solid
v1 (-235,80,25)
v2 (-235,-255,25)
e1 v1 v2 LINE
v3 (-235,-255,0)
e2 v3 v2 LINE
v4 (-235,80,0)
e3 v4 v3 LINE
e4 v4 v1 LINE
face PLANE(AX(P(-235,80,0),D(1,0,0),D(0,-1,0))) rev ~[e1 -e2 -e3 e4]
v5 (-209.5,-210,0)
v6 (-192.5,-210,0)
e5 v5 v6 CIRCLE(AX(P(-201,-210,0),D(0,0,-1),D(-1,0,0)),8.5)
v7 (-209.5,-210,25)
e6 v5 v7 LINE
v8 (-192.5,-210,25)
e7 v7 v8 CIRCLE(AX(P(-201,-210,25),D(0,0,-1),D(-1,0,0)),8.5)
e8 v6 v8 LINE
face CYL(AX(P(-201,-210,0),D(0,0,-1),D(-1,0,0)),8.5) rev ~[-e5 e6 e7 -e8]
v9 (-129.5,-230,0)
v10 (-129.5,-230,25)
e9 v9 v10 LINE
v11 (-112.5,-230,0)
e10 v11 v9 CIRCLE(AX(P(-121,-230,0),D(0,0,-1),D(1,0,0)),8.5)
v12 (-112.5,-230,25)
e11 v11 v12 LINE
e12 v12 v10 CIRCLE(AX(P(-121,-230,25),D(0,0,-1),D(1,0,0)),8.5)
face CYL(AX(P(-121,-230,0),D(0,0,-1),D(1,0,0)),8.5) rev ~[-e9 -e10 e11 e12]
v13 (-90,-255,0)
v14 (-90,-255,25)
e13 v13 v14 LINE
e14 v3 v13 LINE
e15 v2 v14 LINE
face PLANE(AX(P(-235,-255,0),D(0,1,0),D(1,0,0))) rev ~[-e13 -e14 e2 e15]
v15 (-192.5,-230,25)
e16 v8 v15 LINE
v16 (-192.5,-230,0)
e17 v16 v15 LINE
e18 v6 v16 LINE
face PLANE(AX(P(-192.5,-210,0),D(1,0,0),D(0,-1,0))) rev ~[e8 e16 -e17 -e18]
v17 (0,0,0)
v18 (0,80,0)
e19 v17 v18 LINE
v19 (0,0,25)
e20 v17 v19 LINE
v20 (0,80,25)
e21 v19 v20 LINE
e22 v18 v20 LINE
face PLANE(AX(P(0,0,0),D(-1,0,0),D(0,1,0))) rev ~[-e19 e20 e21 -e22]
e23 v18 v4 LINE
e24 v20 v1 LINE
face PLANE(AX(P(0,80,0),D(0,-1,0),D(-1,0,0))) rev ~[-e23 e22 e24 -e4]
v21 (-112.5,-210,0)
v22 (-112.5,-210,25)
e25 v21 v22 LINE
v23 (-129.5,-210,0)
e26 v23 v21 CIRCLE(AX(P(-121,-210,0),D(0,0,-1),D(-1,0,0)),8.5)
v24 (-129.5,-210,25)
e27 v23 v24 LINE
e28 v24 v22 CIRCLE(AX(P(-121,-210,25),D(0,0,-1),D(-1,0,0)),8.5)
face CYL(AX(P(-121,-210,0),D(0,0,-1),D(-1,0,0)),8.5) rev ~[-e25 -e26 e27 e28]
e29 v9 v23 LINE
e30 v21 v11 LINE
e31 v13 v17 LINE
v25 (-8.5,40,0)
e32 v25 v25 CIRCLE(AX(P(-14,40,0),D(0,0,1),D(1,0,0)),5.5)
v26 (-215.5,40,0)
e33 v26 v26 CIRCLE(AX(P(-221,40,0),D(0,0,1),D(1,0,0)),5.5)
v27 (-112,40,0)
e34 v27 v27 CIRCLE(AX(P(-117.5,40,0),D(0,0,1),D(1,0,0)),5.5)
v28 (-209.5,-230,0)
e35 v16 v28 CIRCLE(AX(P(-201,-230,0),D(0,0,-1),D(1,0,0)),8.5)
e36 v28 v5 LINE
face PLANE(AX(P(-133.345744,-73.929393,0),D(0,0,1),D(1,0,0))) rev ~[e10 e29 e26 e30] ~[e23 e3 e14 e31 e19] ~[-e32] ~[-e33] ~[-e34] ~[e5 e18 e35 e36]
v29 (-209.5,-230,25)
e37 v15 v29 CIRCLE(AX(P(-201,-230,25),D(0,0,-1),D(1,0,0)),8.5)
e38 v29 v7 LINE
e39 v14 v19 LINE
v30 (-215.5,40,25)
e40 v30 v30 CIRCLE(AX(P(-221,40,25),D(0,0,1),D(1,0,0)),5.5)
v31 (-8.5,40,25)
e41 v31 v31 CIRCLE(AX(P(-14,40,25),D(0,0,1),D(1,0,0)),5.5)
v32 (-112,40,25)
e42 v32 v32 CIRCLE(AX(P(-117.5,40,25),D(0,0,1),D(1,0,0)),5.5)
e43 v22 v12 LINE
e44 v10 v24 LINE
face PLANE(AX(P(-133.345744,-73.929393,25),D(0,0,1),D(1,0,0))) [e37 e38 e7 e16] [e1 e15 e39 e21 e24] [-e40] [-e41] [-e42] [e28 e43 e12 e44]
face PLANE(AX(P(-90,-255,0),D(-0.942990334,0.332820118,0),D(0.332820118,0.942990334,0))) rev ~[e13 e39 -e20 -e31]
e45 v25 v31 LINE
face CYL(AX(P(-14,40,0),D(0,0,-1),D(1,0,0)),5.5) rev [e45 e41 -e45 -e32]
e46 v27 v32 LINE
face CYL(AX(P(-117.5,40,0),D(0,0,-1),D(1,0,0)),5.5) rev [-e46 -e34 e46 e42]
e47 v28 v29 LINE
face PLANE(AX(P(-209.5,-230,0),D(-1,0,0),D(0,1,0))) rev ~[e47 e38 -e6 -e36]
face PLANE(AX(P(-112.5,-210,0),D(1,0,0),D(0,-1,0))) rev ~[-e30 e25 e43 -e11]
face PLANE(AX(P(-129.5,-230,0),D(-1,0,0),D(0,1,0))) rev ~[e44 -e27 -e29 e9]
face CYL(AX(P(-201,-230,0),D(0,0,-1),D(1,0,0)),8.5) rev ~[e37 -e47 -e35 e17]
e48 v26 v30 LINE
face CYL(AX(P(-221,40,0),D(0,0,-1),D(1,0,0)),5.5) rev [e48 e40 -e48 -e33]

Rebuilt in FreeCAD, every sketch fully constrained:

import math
import FreeCAD as App
import Part
import Sketcher
from FreeCAD import Vector
Q = App.Units.Quantity


def add_polygon(sketch, points):
    """Adds a closed chain of lines whose ends are joined by coincident constraints."""
    first, n = sketch.GeometryCount, len(points)
    for a, b in zip(points, points[1:] + points[:1]):
        sketch.addGeometry(Part.LineSegment(App.Vector(*a, 0), App.Vector(*b, 0)), False)
    for i in range(n):
        sketch.addConstraint(Sketcher.Constraint("Coincident", first + i, 2, first + (i + 1) % n, 1))

doc = App.newDocument("Part")
params = doc.addObject("Spreadsheet::Sheet", "Params")
for row, (alias, value) in enumerate([
    ("sketch1_diameter", "11 mm"),
    ("sketch1_radius", "8.5 mm"),
    ("sketch1_width", "235 mm"),
    ("sketch1_width2", "145 mm"),
    ("sketch1_height", "335 mm"),
    ("pad1_length", "25 mm"),
    ("sketch2_diameter", "11 mm"),
    ("sketch2_radius", "8.5 mm"),
    ("sketch2_width", "235 mm"),
    ("sketch2_width2", "145 mm"),
    ("sketch2_height", "335 mm"),
    ("pad2_length", "25 mm"),
], start=1):
    params.set(f"A{row}", alias)
    params.set(f"B{row}", "=" + value)
    params.setAlias(f"B{row}", alias)

body = doc.addObject("PartDesign::Body", "Body")

# Sketch on XY plane
sketch1 = body.newObject("Sketcher::SketchObject", "Sketch")
sketch1.AttachmentSupport = (doc.getObject("XY_Plane"), [""])
sketch1.MapMode = "FlatFace"
add_polygon(sketch1, [(0, 80), (-235, 80), (-235, -255), (-90, -255), (0, 0)])  # lines 0-4
sketch1.addGeometry(Part.LineSegment(Vector(-210, -230, 0), Vector(-210, -210, 0)), False)  # 5
sketch1.addGeometry(Part.ArcOfCircle(Part.Circle(Vector(-201, -210, 0), Vector(0, 0, 1), 8), math.radians(0), math.radians(180)), False)  # 6
sketch1.addGeometry(Part.LineSegment(Vector(-192, -210, 0), Vector(-192, -230, 0)), False)  # 7
sketch1.addGeometry(Part.ArcOfCircle(Part.Circle(Vector(-201, -230, 0), Vector(0, 0, 1), 8), math.radians(180), math.radians(360)), False)  # 8
sketch1.addGeometry(Part.LineSegment(Vector(-130, -230, 0), Vector(-130, -210, 0)), False)  # 9
sketch1.addGeometry(Part.ArcOfCircle(Part.Circle(Vector(-121, -210, 0), Vector(0, 0, 1), 8), math.radians(0), math.radians(180)), False)  # 10
sketch1.addGeometry(Part.LineSegment(Vector(-112, -210, 0), Vector(-112, -230, 0)), False)  # 11
sketch1.addGeometry(Part.ArcOfCircle(Part.Circle(Vector(-121, -230, 0), Vector(0, 0, 1), 8), math.radians(180), math.radians(360)), False)  # 12
sketch1.addGeometry(Part.Circle(Vector(-221, 40, 0), Vector(0, 0, 1), 6), False)  # 13
sketch1.addGeometry(Part.Circle(Vector(-118, 40, 0), Vector(0, 0, 1), 6), False)  # 14
sketch1.addGeometry(Part.Circle(Vector(-14, 40, 0), Vector(0, 0, 1), 6), False)  # 15
sketch1.addConstraint(Sketcher.Constraint("Tangent", 5, 2, 6, 2))
sketch1.addConstraint(Sketcher.Constraint("Tangent", 6, 1, 7, 1))
sketch1.addConstraint(Sketcher.Constraint("Tangent", 7, 2, 8, 2))
sketch1.addConstraint(Sketcher.Constraint("Tangent", 8, 1, 5, 1))
sketch1.addConstraint(Sketcher.Constraint("Tangent", 9, 2, 10, 2))
sketch1.addConstraint(Sketcher.Constraint("Tangent", 10, 1, 11, 1))
sketch1.addConstraint(Sketcher.Constraint("Tangent", 11, 2, 12, 2))
sketch1.addConstraint(Sketcher.Constraint("Tangent", 12, 1, 9, 1))
sketch1.addConstraint(Sketcher.Constraint("Horizontal", 0))
sketch1.addConstraint(Sketcher.Constraint("Vertical", 1))
sketch1.addConstraint(Sketcher.Constraint("Horizontal", 2))
sketch1.addConstraint(Sketcher.Constraint("Vertical", 4))
sketch1.addConstraint(Sketcher.Constraint("Vertical", 5))
sketch1.addConstraint(Sketcher.Constraint("Vertical", 7))
sketch1.addConstraint(Sketcher.Constraint("Vertical", 9))
sketch1.addConstraint(Sketcher.Constraint("Vertical", 11))
sketch1.addConstraint(Sketcher.Constraint("Coincident", 3, 2, -1, 1))
sketch1.addConstraint(Sketcher.Constraint("Equal", 8, 10))
sketch1.addConstraint(Sketcher.Constraint("Equal", 13, 14))
sketch1.addConstraint(Sketcher.Constraint("Equal", 14, 15))
sketch1.addConstraint(Sketcher.Constraint("Horizontal", 6, 3, 10, 3))
sketch1.addConstraint(Sketcher.Constraint("Horizontal", 8, 3, 12, 3))
sketch1.addConstraint(Sketcher.Constraint("Horizontal", 13, 3, 14, 3))
sketch1.addConstraint(Sketcher.Constraint("Horizontal", 14, 3, 15, 3))
sketch1.addConstraint(Sketcher.Constraint("Diameter", 13, Q("11 mm")))
sketch1.addConstraint(Sketcher.Constraint("Radius", 6, Q("8.5 mm")))
sketch1.addConstraint(Sketcher.Constraint("DistanceX", 0, 2, 0, 1, Q("235 mm")))
sketch1.addConstraint(Sketcher.Constraint("DistanceX", 2, 1, 2, 2, Q("145 mm")))
sketch1.addConstraint(Sketcher.Constraint("DistanceY", 1, 2, 1, 1, Q("335 mm")))
sketch1.addConstraint(Sketcher.Constraint("DistanceY", 4, 1, 4, 2, Q("80 mm")))
sketch1.addConstraint(Sketcher.Constraint("DistanceY", 5, 1, 5, 2, Q("20 mm")))
sketch1.addConstraint(Sketcher.Constraint("DistanceX", 6, 3, -1, 1, Q("201 mm")))
sketch1.addConstraint(Sketcher.Constraint("DistanceY", 6, 3, -1, 1, Q("210 mm")))
sketch1.addConstraint(Sketcher.Constraint("DistanceX", 10, 3, -1, 1, Q("121 mm")))
sketch1.addConstraint(Sketcher.Constraint("DistanceX", 13, 3, -1, 1, Q("221 mm")))
sketch1.addConstraint(Sketcher.Constraint("DistanceY", -1, 1, 13, 3, Q("40 mm")))
sketch1.addConstraint(Sketcher.Constraint("DistanceX", 15, 3, -1, 1, Q("14 mm")))
sketch1.addConstraint(Sketcher.Constraint("DistanceX", 14, 3, -1, 1, Q("117.5 mm")))
sketch1.setExpression("Constraints[29]", "Params.sketch1_diameter")
sketch1.setExpression("Constraints[30]", "Params.sketch1_radius")
sketch1.setExpression("Constraints[31]", "Params.sketch1_width")
sketch1.setExpression("Constraints[32]", "Params.sketch1_width2")
sketch1.setExpression("Constraints[33]", "Params.sketch1_height")
pad1 = body.newObject("PartDesign::Pad", "Pad")
pad1.Profile = sketch1
pad1.setExpression("Length", "Params.pad1_length")

# Sketch on XY plane
sketch2 = body.newObject("Sketcher::SketchObject", "Sketch001")
sketch2.AttachmentSupport = (doc.getObject("XY_Plane"), [""])
sketch2.MapMode = "FlatFace"
add_polygon(sketch2, [(0, 80), (-235, 80), (-235, -255), (-90, -255), (0, 0)])  # lines 0-4
sketch2.addGeometry(Part.LineSegment(Vector(-210, -230, 0), Vector(-210, -210, 0)), False)  # 5
sketch2.addGeometry(Part.ArcOfCircle(Part.Circle(Vector(-201, -210, 0), Vector(0, 0, 1), 8), math.radians(0), math.radians(180)), False)  # 6
sketch2.addGeometry(Part.LineSegment(Vector(-192, -210, 0), Vector(-192, -230, 0)), False)  # 7
sketch2.addGeometry(Part.ArcOfCircle(Part.Circle(Vector(-201, -230, 0), Vector(0, 0, 1), 8), math.radians(180), math.radians(360)), False)  # 8
sketch2.addGeometry(Part.LineSegment(Vector(-130, -230, 0), Vector(-130, -210, 0)), False)  # 9
sketch2.addGeometry(Part.ArcOfCircle(Part.Circle(Vector(-121, -210, 0), Vector(0, 0, 1), 8), math.radians(0), math.radians(180)), False)  # 10
sketch2.addGeometry(Part.LineSegment(Vector(-112, -210, 0), Vector(-112, -230, 0)), False)  # 11
sketch2.addGeometry(Part.ArcOfCircle(Part.Circle(Vector(-121, -230, 0), Vector(0, 0, 1), 8), math.radians(180), math.radians(360)), False)  # 12
sketch2.addGeometry(Part.Circle(Vector(-221, 40, 0), Vector(0, 0, 1), 6), False)  # 13
sketch2.addGeometry(Part.Circle(Vector(-118, 40, 0), Vector(0, 0, 1), 6), False)  # 14
sketch2.addGeometry(Part.Circle(Vector(-14, 40, 0), Vector(0, 0, 1), 6), False)  # 15
sketch2.addConstraint(Sketcher.Constraint("Tangent", 5, 2, 6, 2))
sketch2.addConstraint(Sketcher.Constraint("Tangent", 6, 1, 7, 1))
sketch2.addConstraint(Sketcher.Constraint("Tangent", 7, 2, 8, 2))
sketch2.addConstraint(Sketcher.Constraint("Tangent", 8, 1, 5, 1))
sketch2.addConstraint(Sketcher.Constraint("Tangent", 9, 2, 10, 2))
sketch2.addConstraint(Sketcher.Constraint("Tangent", 10, 1, 11, 1))
sketch2.addConstraint(Sketcher.Constraint("Tangent", 11, 2, 12, 2))
sketch2.addConstraint(Sketcher.Constraint("Tangent", 12, 1, 9, 1))
sketch2.addConstraint(Sketcher.Constraint("Horizontal", 0))
sketch2.addConstraint(Sketcher.Constraint("Vertical", 1))
sketch2.addConstraint(Sketcher.Constraint("Horizontal", 2))
sketch2.addConstraint(Sketcher.Constraint("Vertical", 4))
sketch2.addConstraint(Sketcher.Constraint("Vertical", 5))
sketch2.addConstraint(Sketcher.Constraint("Vertical", 7))
sketch2.addConstraint(Sketcher.Constraint("Vertical", 9))
sketch2.addConstraint(Sketcher.Constraint("Vertical", 11))
sketch2.addConstraint(Sketcher.Constraint("Coincident", 3, 2, -1, 1))
sketch2.addConstraint(Sketcher.Constraint("Equal", 8, 10))
sketch2.addConstraint(Sketcher.Constraint("Equal", 13, 14))
sketch2.addConstraint(Sketcher.Constraint("Equal", 14, 15))
sketch2.addConstraint(Sketcher.Constraint("Horizontal", 6, 3, 10, 3))
sketch2.addConstraint(Sketcher.Constraint("Horizontal", 8, 3, 12, 3))
sketch2.addConstraint(Sketcher.Constraint("Horizontal", 13, 3, 14, 3))
sketch2.addConstraint(Sketcher.Constraint("Horizontal", 14, 3, 15, 3))
sketch2.addConstraint(Sketcher.Constraint("Diameter", 13, Q("11 mm")))
sketch2.addConstraint(Sketcher.Constraint("Radius", 6, Q("8.5 mm")))
sketch2.addConstraint(Sketcher.Constraint("DistanceX", 0, 2, 0, 1, Q("235 mm")))
sketch2.addConstraint(Sketcher.Constraint("DistanceX", 2, 1, 2, 2, Q("145 mm")))
sketch2.addConstraint(Sketcher.Constraint("DistanceY", 1, 2, 1, 1, Q("335 mm")))
sketch2.addConstraint(Sketcher.Constraint("DistanceY", 4, 1, 4, 2, Q("80 mm")))
sketch2.addConstraint(Sketcher.Constraint("DistanceY", 5, 1, 5, 2, Q("20 mm")))
sketch2.addConstraint(Sketcher.Constraint("DistanceX", 6, 3, -1, 1, Q("201 mm")))
sketch2.addConstraint(Sketcher.Constraint("DistanceY", 6, 3, -1, 1, Q("210 mm")))
sketch2.addConstraint(Sketcher.Constraint("DistanceX", 10, 3, -1, 1, Q("121 mm")))
sketch2.addConstraint(Sketcher.Constraint("DistanceX", 13, 3, -1, 1, Q("221 mm")))
sketch2.addConstraint(Sketcher.Constraint("DistanceY", -1, 1, 13, 3, Q("40 mm")))
sketch2.addConstraint(Sketcher.Constraint("DistanceX", 15, 3, -1, 1, Q("14 mm")))
sketch2.addConstraint(Sketcher.Constraint("DistanceX", 14, 3, -1, 1, Q("117.5 mm")))
sketch2.setExpression("Constraints[29]", "Params.sketch2_diameter")
sketch2.setExpression("Constraints[30]", "Params.sketch2_radius")
sketch2.setExpression("Constraints[31]", "Params.sketch2_width")
sketch2.setExpression("Constraints[32]", "Params.sketch2_width2")
sketch2.setExpression("Constraints[33]", "Params.sketch2_height")
pad2 = body.newObject("PartDesign::Pad", "Pad001")
pad2.Profile = sketch2
pad2.setExpression("Length", "Params.pad2_length")

doc.recompute()
